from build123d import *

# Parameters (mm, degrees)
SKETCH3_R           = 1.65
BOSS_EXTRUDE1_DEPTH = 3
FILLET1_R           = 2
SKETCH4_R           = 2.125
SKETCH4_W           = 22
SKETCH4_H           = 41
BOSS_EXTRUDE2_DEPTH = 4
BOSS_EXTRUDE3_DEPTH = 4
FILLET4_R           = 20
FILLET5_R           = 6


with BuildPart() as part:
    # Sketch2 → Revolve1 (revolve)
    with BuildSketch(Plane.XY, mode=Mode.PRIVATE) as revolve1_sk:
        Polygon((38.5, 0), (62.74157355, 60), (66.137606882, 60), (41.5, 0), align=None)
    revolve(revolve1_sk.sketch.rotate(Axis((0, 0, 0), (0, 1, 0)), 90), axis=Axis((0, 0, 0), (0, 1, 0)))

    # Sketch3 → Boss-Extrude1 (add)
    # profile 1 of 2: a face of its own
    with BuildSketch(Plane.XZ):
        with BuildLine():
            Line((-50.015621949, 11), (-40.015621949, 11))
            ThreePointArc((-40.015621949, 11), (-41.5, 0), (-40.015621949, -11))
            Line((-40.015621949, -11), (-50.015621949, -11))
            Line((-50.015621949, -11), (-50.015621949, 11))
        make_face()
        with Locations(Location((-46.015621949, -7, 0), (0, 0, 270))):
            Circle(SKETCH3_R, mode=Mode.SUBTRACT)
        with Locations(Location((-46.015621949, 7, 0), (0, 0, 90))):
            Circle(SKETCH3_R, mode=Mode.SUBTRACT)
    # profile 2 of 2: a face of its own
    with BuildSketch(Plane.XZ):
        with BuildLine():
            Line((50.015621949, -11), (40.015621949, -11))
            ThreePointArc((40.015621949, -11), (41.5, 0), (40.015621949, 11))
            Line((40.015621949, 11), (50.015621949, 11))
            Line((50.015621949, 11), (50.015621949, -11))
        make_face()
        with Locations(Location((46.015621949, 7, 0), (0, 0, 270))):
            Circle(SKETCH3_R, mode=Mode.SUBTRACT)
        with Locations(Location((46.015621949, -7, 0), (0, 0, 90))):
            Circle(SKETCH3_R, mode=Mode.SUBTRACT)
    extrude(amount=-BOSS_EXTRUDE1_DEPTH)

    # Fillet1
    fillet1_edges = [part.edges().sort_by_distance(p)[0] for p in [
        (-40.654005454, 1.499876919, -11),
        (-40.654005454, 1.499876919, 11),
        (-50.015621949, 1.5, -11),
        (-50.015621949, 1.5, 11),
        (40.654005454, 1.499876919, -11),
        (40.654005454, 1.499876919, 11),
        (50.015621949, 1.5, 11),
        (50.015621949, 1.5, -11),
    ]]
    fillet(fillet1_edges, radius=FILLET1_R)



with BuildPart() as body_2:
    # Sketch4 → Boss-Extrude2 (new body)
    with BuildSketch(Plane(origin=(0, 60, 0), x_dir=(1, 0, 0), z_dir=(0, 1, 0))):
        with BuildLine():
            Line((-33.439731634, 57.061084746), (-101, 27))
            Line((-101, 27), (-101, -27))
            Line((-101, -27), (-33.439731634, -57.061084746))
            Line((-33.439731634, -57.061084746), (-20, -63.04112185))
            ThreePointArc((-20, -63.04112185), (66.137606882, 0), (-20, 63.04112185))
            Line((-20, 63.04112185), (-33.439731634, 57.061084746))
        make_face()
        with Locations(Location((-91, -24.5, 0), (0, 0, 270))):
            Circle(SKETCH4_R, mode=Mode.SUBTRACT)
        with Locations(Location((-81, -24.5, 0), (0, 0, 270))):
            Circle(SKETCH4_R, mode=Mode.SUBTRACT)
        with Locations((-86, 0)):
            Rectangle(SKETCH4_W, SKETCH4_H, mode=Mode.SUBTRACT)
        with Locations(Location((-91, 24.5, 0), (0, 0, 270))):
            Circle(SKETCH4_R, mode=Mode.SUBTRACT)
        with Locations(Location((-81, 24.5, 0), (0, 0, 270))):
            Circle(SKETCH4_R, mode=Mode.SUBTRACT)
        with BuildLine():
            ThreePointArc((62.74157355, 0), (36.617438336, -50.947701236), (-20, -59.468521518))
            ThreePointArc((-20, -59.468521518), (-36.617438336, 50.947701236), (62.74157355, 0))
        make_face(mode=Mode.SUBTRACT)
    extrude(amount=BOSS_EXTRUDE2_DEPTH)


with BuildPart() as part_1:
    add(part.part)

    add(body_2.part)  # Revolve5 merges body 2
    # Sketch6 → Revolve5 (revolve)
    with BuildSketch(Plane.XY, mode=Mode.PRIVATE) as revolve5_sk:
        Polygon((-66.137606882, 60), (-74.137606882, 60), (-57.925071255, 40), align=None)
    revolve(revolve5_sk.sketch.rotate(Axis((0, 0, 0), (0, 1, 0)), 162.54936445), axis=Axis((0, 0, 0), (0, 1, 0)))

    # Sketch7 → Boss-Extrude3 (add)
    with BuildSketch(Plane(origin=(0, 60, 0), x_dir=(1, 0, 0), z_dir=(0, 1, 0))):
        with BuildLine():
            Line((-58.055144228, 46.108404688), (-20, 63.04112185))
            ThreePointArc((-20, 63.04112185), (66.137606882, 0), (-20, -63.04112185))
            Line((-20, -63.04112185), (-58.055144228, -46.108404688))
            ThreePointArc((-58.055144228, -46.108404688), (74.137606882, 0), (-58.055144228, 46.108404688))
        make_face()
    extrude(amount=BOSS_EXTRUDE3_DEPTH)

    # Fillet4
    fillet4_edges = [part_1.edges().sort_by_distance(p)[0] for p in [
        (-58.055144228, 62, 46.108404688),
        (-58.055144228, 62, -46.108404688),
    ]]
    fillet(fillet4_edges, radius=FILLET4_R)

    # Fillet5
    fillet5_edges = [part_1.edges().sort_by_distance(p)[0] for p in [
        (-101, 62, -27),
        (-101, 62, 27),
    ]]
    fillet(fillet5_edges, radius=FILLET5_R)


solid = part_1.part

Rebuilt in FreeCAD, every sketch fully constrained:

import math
import FreeCAD as App
import Part
import Sketcher

V = App.Vector
Q = App.Units.Quantity


def edges_at(feature, points):
    """Names of the edges that pass closest to the given points."""
    edges = feature.Shape.Edges
    near = lambda p: min(range(len(edges)), key=lambda i: edges[i].distToShape(Part.Vertex(*p))[0])
    return sorted({f"Edge{near(p) + 1}" for p in points})


def add_polygon(sketch, points):
    """Adds a closed chain of lines whose ends are joined by coincident constraints."""
    first, n = sketch.GeometryCount, len(points)
    for a, b in zip(points, points[1:] + points[:1]):
        sketch.addGeometry(Part.LineSegment(App.Vector(*a, 0), App.Vector(*b, 0)), False)
    for i in range(n):
        sketch.addConstraint(Sketcher.Constraint("Coincident", first + i, 2, first + (i + 1) % n, 1))

doc = App.newDocument("Part")
body = doc.addObject("PartDesign::Body", "Body")

# Sketch on XY plane
sketch1 = body.newObject("Sketcher::SketchObject", "Sketch")
sketch1.AttachmentSupport = (doc.getObject("XY_Plane"), [""])
sketch1.MapMode = "FlatFace"
add_polygon(sketch1, [(62.7, 60), (38.5, 0), (41.5, 0), (66.1, 60)])  # lines 0-3
sketch1.addConstraint(Sketcher.Constraint("Horizontal", 1))
sketch1.addConstraint(Sketcher.Constraint("Horizontal", 3))
sketch1.addConstraint(Sketcher.Constraint("PointOnObject", 0, 2, -1))
sketch1.addConstraint(Sketcher.Constraint("DistanceX", 1, 1, 1, 2, 3.0))
sketch1.addConstraint(Sketcher.Constraint("Angle", 0, Q("-112 deg")))
sketch1.addConstraint(Sketcher.Constraint("DistanceY", -1, 1, 2, 2, 60.0))
sketch1.addConstraint(Sketcher.Constraint("DistanceX", -1, 1, 0, 2, 38.5))
sketch1.addConstraint(Sketcher.Constraint("Distance", 2, 64.861481))
revolution = body.newObject("PartDesign::Revolution", "Revolution")
revolution.Profile = sketch1
revolution.ReferenceAxis = (sketch1, ["V_Axis"])
revolution.Angle = 360

# Sketch on XZ plane
sketch2 = body.newObject("Sketcher::SketchObject", "Sketch001")
sketch2.AttachmentSupport = (doc.getObject("XZ_Plane"), [""])
sketch2.MapMode = "FlatFace"
sketch2.addGeometry(Part.LineSegment(V(-40, 11, 0), V(-50, 11, 0)), False)
sketch2.addGeometry(Part.LineSegment(V(-50, 11, 0), V(-50, -11, 0)), False)
sketch2.addGeometry(Part.LineSegment(V(-50, -11, 0), V(-40, -11, 0)), False)
sketch2.addGeometry(Part.ArcOfCircle(Part.Circle(V(0, 0, 0), V(0, 0, 1), 41.5), math.radians(165), math.radians(195)), False)
sketch2.addGeometry(Part.Circle(V(-46, -7, 0), V(0, 0, 1), 1.6), False)
sketch2.addGeometry(Part.Circle(V(-46, 7, 0), V(0, 0, 1), 1.6), False)
sketch2.addGeometry(Part.LineSegment(V(40, -11, 0), V(50, -11, 0)), False)
sketch2.addGeometry(Part.LineSegment(V(50, -11, 0), V(50, 11, 0)), False)
sketch2.addGeometry(Part.LineSegment(V(50, 11, 0), V(40, 11, 0)), False)
sketch2.addGeometry(Part.ArcOfCircle(Part.Circle(V(0, 0, 0), V(0, 0, 1), 41.5), math.radians(-15), math.radians(15)), False)
sketch2.addGeometry(Part.Circle(V(46, -7, 0), V(0, 0, 1), 1.6), False)
sketch2.addGeometry(Part.Circle(V(46, 7, 0), V(0, 0, 1), 1.6), False)
sketch2.addConstraint(Sketcher.Constraint("Coincident", 0, 2, 1, 1))
sketch2.addConstraint(Sketcher.Constraint("Coincident", 1, 2, 2, 1))
sketch2.addConstraint(Sketcher.Constraint("Coincident", 2, 2, 3, 2))
sketch2.addConstraint(Sketcher.Constraint("Coincident", 3, 1, 0, 1))
sketch2.addConstraint(Sketcher.Constraint("Coincident", 6, 2, 7, 1))
sketch2.addConstraint(Sketcher.Constraint("Coincident", 7, 2, 8, 1))
sketch2.addConstraint(Sketcher.Constraint("Coincident", 8, 2, 9, 2))
sketch2.addConstraint(Sketcher.Constraint("Coincident", 9, 1, 6, 1))
sketch2.addConstraint(Sketcher.Constraint("Horizontal", 0))
sketch2.addConstraint(Sketcher.Constraint("Vertical", 1))
sketch2.addConstraint(Sketcher.Constraint("Horizontal", 2))
sketch2.addConstraint(Sketcher.Constraint("Horizontal", 6))
sketch2.addConstraint(Sketcher.Constraint("Vertical", 7))
sketch2.addConstraint(Sketcher.Constraint("Horizontal", 8))
sketch2.addConstraint(Sketcher.Constraint("Coincident", 3, 3, -1, 1))
sketch2.addConstraint(Sketcher.Constraint("Coincident", 9, 3, -1, 1))
sketch2.addConstraint(Sketcher.Constraint("Equal", 4, 5))
sketch2.addConstraint(Sketcher.Constraint("Equal", 3, 9))
sketch2.addConstraint(Sketcher.Constraint("Equal", 5, 10))
sketch2.addConstraint(Sketcher.Constraint("Equal", 10, 11))
sketch2.addConstraint(Sketcher.Constraint("Symmetric", 5, 3, 10, 3, -1, 1))
sketch2.addConstraint(Sketcher.Constraint("Symmetric", 4, 3, 11, 3, -1, 1))
sketch2.addConstraint(Sketcher.Constraint("Symmetric", 0, 2, 6, 2, -1, 1))
sketch2.addConstraint(Sketcher.Constraint("Symmetric", 4, 3, 10, 3, -2))
sketch2.addConstraint(Sketcher.Constraint("Horizontal", 2, 2, 6, 2))
sketch2.addConstraint(Sketcher.Constraint("Horizontal", 3, 1, 7, 2))
sketch2.addConstraint(Sketcher.Constraint("Diameter", 4, 3.3))
sketch2.addConstraint(Sketcher.Constraint("Radius", 3, 41.5))
sketch2.addConstraint(Sketcher.Constraint("DistanceX", 0, 2, 0, 1, 10.0))
sketch2.addConstraint(Sketcher.Constraint("DistanceY", 1, 2, 1, 1, 22.0))
sketch2.addConstraint(Sketcher.Constraint("DistanceY", 4, 3, -1, 1, 7.0))
sketch2.addConstraint(Sketcher.Constraint("DistanceX", 0, 2, 5, 3, 4.0))
pad1 = body.newObject("PartDesign::Pad", "Pad")
pad1.Profile = sketch2
pad1.Length = 3
pad1.Reversed = True
doc.recompute()

fillet = body.newObject("PartDesign::Fillet", "Fillet")
fillet.Base = (pad1, edges_at(pad1, [
    (-40.654, 1.5, -11),
    (-40.654, 1.5, 11),
    (-50.016, 1.5, -11),
    (-50.016, 1.5, 11),
    (40.654, 1.5, -11),
    (40.654, 1.5, 11),
    (50.016, 1.5, 11),
    (50.016, 1.5, -11),
]))
fillet.Radius = 2
body2 = doc.addObject("PartDesign::Body", "Body001")

# Sketch on XZ plane
sketch3 = body2.newObject("Sketcher::SketchObject", "Sketch002")
sketch3.AttachmentSupport = (doc.getObject("XZ_Plane001"), [""])
sketch3.MapMode = "FlatFace"
sketch3.AttachmentOffset = App.Placement(V(0, 0, -60), App.Rotation())
sketch3.addGeometry(Part.LineSegment(V(-33.4, -57.1, 0), V(-101, -27, 0)), False)  # 0
sketch3.addGeometry(Part.LineSegment(V(-101, -27, 0), V(-101, 27, 0)), False)  # 1
sketch3.addGeometry(Part.LineSegment(V(-101, 27, 0), V(-33.4, 57.1, 0)), False)  # 2
sketch3.addGeometry(Part.LineSegment(V(-33.4, 57.1, 0), V(-20, 63, 0)), False)  # 3
sketch3.addGeometry(Part.ArcOfCircle(Part.Circle(V(0, 0, 0), V(0, 0, 1), 66.1), math.radians(-108), math.radians(108)), False)  # 4
sketch3.addGeometry(Part.LineSegment(V(-20, -63, 0), V(-33.4, -57.1, 0)), False)  # 5
sketch3.addGeometry(Part.Circle(V(-91, 24.5, 0), V(0, 0, 1), 2.1), False)  # 6
sketch3.addGeometry(Part.Circle(V(-81, 24.5, 0), V(0, 0, 1), 2.1), False)  # 7
add_polygon(sketch3, [(-75, 20.5), (-97, 20.5), (-97, -20.5), (-75, -20.5)])  # lines 8-11
sketch3.addGeometry(Part.Circle(V(-91, -24.5, 0), V(0, 0, 1), 2.1), False)  # 12
sketch3.addGeometry(Part.Circle(V(-81, -24.5, 0), V(0, 0, 1), 2.1), False)  # 13
sketch3.addGeometry(Part.ArcOfCircle(Part.Circle(V(0, 0, 0), V(0, 0, 1), 62.7), math.radians(109), math.radians(360)), False)  # 14
sketch3.addGeometry(Part.ArcOfCircle(Part.Circle(V(0, 0, 0), V(0, 0, 1), 62.7), math.radians(0), math.radians(109)), False)  # 15
sketch3.addConstraint(Sketcher.Constraint("Coincident", 0, 2, 1, 1))
sketch3.addConstraint(Sketcher.Constraint("Coincident", 1, 2, 2, 1))
sketch3.addConstraint(Sketcher.Constraint("Coincident", 2, 2, 3, 1))
sketch3.addConstraint(Sketcher.Constraint("Coincident", 3, 2, 4, 2))
sketch3.addConstraint(Sketcher.Constraint("Coincident", 4, 1, 5, 1))
sketch3.addConstraint(Sketcher.Constraint("Coincident", 5, 2, 0, 1))
sketch3.addConstraint(Sketcher.Constraint("Tangent", 14, 1, 15, 2))
sketch3.addConstraint(Sketcher.Constraint("Coincident", 15, 1, 14, 2))
sketch3.addConstraint(Sketcher.Constraint("Vertical", 1))
sketch3.addConstraint(Sketcher.Constraint("Horizontal", 8))
sketch3.addConstraint(Sketcher.Constraint("Vertical", 9))
sketch3.addConstraint(Sketcher.Constraint("Horizontal", 10))
sketch3.addConstraint(Sketcher.Constraint("Vertical", 11))
sketch3.addConstraint(Sketcher.Constraint("Coincident", 4, 3, -1, 1))
sketch3.addConstraint(Sketcher.Constraint("Coincident", 14, 3, -1, 1))
sketch3.addConstraint(Sketcher.Constraint("Equal", 6, 7))
sketch3.addConstraint(Sketcher.Constraint("Equal", 7, 12))
sketch3.addConstraint(Sketcher.Constraint("Equal", 12, 13))
sketch3.addConstraint(Sketcher.Constraint("Symmetric", 6, 3, 12, 3, -1))
sketch3.addConstraint(Sketcher.Constraint("Symmetric", 7, 3, 13, 3, -1))
sketch3.addConstraint(Sketcher.Constraint("Symmetric", 2, 2, 5, 2, -1))
sketch3.addConstraint(Sketcher.Constraint("PointOnObject", 15, 1, -1))
sketch3.addConstraint(Sketcher.Constraint("Parallel", 2, 3))
sketch3.addConstraint(Sketcher.Constraint("Parallel", 0, 5))
sketch3.addConstraint(Sketcher.Constraint("Horizontal", 6, 3, 7, 3))
sketch3.addConstraint(Sketcher.Constraint("Vertical", 3, 2, 4, 1))
sketch3.addConstraint(Sketcher.Constraint("Vertical", 4, 1, 14, 1))
sketch3.addConstraint(Sketcher.Constraint("Diameter", 6, 4.25))
sketch3.addConstraint(Sketcher.Constraint("DistanceX", 8, 2, 8, 1, 22.0))
sketch3.addConstraint(Sketcher.Constraint("DistanceY", 1, 1, 1, 2, 54.0))
sketch3.addConstraint(Sketcher.Constraint("DistanceY", 9, 2, 9, 1, 41.0))
sketch3.addConstraint(Sketcher.Constraint("DistanceX", 6, 3, -1, 1, 91.0))
sketch3.addConstraint(Sketcher.Constraint("DistanceX", 7, 3, -1, 1, 81.0))
sketch3.addConstraint(Sketcher.Constraint("DistanceX", 0, 2, -1, 1, 101.0))
sketch3.addConstraint(Sketcher.Constraint("DistanceX", 3, 2, -1, 1, 20.0))
sketch3.addConstraint(Sketcher.Constraint("DistanceX", 8, 2, -1, 1, 97.0))
sketch3.addConstraint(Sketcher.Constraint("DistanceY", 12, 3, 6, 3, 49.0))
sketch3.addConstraint(Sketcher.Constraint("DistanceY", 8, 2, 6, 3, 4.0))
sketch3.addConstraint(Sketcher.Constraint("Radius", 4, 66.137607))
sketch3.addConstraint(Sketcher.Constraint("Radius", 14, 62.741574))
sketch3.addConstraint(Sketcher.Constraint("DistanceX", 2, 2, -1, 1, 33.439732))
pad2 = body2.newObject("PartDesign::Pad", "Pad001")
pad2.Profile = sketch3
pad2.Length = 4
pad2.Reversed = True
doc.recompute()

boolean = body.newObject("PartDesign::Boolean", "Boolean")
boolean.Type = "Fuse"
boolean.addObjects([body2])

# Sketch on XY plane
sketch4 = body.newObject("Sketcher::SketchObject", "Sketch003")
sketch4.AttachmentSupport = (doc.getObject("XY_Plane"), [""])
sketch4.MapMode = "FlatFace"
add_polygon(sketch4, [(-66, 60), (-74, 60), (-58, 40)])  # lines 0-2
sketch4.addConstraint(Sketcher.Constraint("Horizontal", 0))
sketch4.addConstraint(Sketcher.Constraint("DistanceX", 0, 2, 0, 1, 8.0))
sketch4.addConstraint(Sketcher.Constraint("DistanceY", -1, 1, 0, 2, 60.0))
sketch4.addConstraint(Sketcher.Constraint("DistanceY", -1, 1, 1, 2, 40.0))
sketch4.addConstraint(Sketcher.Constraint("Distance", 1, 25.745802))
sketch4.addConstraint(Sketcher.Constraint("DistanceX", 1, 2, -1, 1, 57.925071))
revolution2 = body.newObject("PartDesign::Revolution", "Revolution001")
revolution2.Profile = sketch4
revolution2.ReferenceAxis = (sketch4, ["V_Axis"])
revolution2.Angle = 360

# Sketch on XZ plane
sketch5 = body.newObject("Sketcher::SketchObject", "Sketch004")
sketch5.AttachmentSupport = (doc.getObject("XZ_Plane"), [""])
sketch5.MapMode = "FlatFace"
sketch5.AttachmentOffset = App.Placement(V(0, 0, -60), App.Rotation())
sketch5.addGeometry(Part.LineSegment(V(-58, -46, 0), V(-20, -63, 0)), False)
sketch5.addGeometry(Part.ArcOfCircle(Part.Circle(V(0, 0, 0), V(0, 0, 1), 66), math.radians(-108), math.radians(108)), False)
sketch5.addGeometry(Part.LineSegment(V(-20, 63, 0), V(-58, 46, 0)), False)
sketch5.addGeometry(Part.ArcOfCircle(Part.Circle(V(0, 0, 0), V(0, 0, 1), 74), math.radians(-142), math.radians(142)), False)
sketch5.addConstraint(Sketcher.Constraint("Coincident", 0, 2, 1, 1))
sketch5.addConstraint(Sketcher.Constraint("Coincident", 1, 2, 2, 1))
sketch5.addConstraint(Sketcher.Constraint("Coincident", 2, 2, 3, 2))
sketch5.addConstraint(Sketcher.Constraint("Coincident", 3, 1, 0, 1))
sketch5.addConstraint(Sketcher.Constraint("Coincident", 1, 3, -1, 1))
sketch5.addConstraint(Sketcher.Constraint("Coincident", 3, 3, -1, 1))
sketch5.addConstraint(Sketcher.Constraint("Vertical", 0, 2, 1, 2))
sketch5.addConstraint(Sketcher.Constraint("Vertical", 2, 2, 3, 1))
sketch5.addConstraint(Sketcher.Constraint("DistanceX", 0, 2, -1, 1, 20.0))
sketch5.addConstraint(Sketcher.Constraint("Radius", 1, 66.137607))
sketch5.addConstraint(Sketcher.Constraint("Radius", 3, 74.137607))
sketch5.addConstraint(Sketcher.Constraint("Distance", 0, 41.652262))
pad3 = body.newObject("PartDesign::Pad", "Pad002")
pad3.Profile = sketch5
pad3.Length = 4
pad3.Reversed = True
doc.recompute()

fillet2 = body.newObject("PartDesign::Fillet", "Fillet001")
fillet2.Base = (pad3, edges_at(pad3, [(-58.055, 62, 46.108), (-58.055, 62, -46.108)]))
fillet2.Radius = 20
doc.recompute()

fillet3 = body.newObject("PartDesign::Fillet", "Fillet002")
fillet3.Base = (fillet2, edges_at(fillet2, [(-101, 62, -27), (-101, 62, 27)]))
fillet3.Radius = 6

doc.recompute()
